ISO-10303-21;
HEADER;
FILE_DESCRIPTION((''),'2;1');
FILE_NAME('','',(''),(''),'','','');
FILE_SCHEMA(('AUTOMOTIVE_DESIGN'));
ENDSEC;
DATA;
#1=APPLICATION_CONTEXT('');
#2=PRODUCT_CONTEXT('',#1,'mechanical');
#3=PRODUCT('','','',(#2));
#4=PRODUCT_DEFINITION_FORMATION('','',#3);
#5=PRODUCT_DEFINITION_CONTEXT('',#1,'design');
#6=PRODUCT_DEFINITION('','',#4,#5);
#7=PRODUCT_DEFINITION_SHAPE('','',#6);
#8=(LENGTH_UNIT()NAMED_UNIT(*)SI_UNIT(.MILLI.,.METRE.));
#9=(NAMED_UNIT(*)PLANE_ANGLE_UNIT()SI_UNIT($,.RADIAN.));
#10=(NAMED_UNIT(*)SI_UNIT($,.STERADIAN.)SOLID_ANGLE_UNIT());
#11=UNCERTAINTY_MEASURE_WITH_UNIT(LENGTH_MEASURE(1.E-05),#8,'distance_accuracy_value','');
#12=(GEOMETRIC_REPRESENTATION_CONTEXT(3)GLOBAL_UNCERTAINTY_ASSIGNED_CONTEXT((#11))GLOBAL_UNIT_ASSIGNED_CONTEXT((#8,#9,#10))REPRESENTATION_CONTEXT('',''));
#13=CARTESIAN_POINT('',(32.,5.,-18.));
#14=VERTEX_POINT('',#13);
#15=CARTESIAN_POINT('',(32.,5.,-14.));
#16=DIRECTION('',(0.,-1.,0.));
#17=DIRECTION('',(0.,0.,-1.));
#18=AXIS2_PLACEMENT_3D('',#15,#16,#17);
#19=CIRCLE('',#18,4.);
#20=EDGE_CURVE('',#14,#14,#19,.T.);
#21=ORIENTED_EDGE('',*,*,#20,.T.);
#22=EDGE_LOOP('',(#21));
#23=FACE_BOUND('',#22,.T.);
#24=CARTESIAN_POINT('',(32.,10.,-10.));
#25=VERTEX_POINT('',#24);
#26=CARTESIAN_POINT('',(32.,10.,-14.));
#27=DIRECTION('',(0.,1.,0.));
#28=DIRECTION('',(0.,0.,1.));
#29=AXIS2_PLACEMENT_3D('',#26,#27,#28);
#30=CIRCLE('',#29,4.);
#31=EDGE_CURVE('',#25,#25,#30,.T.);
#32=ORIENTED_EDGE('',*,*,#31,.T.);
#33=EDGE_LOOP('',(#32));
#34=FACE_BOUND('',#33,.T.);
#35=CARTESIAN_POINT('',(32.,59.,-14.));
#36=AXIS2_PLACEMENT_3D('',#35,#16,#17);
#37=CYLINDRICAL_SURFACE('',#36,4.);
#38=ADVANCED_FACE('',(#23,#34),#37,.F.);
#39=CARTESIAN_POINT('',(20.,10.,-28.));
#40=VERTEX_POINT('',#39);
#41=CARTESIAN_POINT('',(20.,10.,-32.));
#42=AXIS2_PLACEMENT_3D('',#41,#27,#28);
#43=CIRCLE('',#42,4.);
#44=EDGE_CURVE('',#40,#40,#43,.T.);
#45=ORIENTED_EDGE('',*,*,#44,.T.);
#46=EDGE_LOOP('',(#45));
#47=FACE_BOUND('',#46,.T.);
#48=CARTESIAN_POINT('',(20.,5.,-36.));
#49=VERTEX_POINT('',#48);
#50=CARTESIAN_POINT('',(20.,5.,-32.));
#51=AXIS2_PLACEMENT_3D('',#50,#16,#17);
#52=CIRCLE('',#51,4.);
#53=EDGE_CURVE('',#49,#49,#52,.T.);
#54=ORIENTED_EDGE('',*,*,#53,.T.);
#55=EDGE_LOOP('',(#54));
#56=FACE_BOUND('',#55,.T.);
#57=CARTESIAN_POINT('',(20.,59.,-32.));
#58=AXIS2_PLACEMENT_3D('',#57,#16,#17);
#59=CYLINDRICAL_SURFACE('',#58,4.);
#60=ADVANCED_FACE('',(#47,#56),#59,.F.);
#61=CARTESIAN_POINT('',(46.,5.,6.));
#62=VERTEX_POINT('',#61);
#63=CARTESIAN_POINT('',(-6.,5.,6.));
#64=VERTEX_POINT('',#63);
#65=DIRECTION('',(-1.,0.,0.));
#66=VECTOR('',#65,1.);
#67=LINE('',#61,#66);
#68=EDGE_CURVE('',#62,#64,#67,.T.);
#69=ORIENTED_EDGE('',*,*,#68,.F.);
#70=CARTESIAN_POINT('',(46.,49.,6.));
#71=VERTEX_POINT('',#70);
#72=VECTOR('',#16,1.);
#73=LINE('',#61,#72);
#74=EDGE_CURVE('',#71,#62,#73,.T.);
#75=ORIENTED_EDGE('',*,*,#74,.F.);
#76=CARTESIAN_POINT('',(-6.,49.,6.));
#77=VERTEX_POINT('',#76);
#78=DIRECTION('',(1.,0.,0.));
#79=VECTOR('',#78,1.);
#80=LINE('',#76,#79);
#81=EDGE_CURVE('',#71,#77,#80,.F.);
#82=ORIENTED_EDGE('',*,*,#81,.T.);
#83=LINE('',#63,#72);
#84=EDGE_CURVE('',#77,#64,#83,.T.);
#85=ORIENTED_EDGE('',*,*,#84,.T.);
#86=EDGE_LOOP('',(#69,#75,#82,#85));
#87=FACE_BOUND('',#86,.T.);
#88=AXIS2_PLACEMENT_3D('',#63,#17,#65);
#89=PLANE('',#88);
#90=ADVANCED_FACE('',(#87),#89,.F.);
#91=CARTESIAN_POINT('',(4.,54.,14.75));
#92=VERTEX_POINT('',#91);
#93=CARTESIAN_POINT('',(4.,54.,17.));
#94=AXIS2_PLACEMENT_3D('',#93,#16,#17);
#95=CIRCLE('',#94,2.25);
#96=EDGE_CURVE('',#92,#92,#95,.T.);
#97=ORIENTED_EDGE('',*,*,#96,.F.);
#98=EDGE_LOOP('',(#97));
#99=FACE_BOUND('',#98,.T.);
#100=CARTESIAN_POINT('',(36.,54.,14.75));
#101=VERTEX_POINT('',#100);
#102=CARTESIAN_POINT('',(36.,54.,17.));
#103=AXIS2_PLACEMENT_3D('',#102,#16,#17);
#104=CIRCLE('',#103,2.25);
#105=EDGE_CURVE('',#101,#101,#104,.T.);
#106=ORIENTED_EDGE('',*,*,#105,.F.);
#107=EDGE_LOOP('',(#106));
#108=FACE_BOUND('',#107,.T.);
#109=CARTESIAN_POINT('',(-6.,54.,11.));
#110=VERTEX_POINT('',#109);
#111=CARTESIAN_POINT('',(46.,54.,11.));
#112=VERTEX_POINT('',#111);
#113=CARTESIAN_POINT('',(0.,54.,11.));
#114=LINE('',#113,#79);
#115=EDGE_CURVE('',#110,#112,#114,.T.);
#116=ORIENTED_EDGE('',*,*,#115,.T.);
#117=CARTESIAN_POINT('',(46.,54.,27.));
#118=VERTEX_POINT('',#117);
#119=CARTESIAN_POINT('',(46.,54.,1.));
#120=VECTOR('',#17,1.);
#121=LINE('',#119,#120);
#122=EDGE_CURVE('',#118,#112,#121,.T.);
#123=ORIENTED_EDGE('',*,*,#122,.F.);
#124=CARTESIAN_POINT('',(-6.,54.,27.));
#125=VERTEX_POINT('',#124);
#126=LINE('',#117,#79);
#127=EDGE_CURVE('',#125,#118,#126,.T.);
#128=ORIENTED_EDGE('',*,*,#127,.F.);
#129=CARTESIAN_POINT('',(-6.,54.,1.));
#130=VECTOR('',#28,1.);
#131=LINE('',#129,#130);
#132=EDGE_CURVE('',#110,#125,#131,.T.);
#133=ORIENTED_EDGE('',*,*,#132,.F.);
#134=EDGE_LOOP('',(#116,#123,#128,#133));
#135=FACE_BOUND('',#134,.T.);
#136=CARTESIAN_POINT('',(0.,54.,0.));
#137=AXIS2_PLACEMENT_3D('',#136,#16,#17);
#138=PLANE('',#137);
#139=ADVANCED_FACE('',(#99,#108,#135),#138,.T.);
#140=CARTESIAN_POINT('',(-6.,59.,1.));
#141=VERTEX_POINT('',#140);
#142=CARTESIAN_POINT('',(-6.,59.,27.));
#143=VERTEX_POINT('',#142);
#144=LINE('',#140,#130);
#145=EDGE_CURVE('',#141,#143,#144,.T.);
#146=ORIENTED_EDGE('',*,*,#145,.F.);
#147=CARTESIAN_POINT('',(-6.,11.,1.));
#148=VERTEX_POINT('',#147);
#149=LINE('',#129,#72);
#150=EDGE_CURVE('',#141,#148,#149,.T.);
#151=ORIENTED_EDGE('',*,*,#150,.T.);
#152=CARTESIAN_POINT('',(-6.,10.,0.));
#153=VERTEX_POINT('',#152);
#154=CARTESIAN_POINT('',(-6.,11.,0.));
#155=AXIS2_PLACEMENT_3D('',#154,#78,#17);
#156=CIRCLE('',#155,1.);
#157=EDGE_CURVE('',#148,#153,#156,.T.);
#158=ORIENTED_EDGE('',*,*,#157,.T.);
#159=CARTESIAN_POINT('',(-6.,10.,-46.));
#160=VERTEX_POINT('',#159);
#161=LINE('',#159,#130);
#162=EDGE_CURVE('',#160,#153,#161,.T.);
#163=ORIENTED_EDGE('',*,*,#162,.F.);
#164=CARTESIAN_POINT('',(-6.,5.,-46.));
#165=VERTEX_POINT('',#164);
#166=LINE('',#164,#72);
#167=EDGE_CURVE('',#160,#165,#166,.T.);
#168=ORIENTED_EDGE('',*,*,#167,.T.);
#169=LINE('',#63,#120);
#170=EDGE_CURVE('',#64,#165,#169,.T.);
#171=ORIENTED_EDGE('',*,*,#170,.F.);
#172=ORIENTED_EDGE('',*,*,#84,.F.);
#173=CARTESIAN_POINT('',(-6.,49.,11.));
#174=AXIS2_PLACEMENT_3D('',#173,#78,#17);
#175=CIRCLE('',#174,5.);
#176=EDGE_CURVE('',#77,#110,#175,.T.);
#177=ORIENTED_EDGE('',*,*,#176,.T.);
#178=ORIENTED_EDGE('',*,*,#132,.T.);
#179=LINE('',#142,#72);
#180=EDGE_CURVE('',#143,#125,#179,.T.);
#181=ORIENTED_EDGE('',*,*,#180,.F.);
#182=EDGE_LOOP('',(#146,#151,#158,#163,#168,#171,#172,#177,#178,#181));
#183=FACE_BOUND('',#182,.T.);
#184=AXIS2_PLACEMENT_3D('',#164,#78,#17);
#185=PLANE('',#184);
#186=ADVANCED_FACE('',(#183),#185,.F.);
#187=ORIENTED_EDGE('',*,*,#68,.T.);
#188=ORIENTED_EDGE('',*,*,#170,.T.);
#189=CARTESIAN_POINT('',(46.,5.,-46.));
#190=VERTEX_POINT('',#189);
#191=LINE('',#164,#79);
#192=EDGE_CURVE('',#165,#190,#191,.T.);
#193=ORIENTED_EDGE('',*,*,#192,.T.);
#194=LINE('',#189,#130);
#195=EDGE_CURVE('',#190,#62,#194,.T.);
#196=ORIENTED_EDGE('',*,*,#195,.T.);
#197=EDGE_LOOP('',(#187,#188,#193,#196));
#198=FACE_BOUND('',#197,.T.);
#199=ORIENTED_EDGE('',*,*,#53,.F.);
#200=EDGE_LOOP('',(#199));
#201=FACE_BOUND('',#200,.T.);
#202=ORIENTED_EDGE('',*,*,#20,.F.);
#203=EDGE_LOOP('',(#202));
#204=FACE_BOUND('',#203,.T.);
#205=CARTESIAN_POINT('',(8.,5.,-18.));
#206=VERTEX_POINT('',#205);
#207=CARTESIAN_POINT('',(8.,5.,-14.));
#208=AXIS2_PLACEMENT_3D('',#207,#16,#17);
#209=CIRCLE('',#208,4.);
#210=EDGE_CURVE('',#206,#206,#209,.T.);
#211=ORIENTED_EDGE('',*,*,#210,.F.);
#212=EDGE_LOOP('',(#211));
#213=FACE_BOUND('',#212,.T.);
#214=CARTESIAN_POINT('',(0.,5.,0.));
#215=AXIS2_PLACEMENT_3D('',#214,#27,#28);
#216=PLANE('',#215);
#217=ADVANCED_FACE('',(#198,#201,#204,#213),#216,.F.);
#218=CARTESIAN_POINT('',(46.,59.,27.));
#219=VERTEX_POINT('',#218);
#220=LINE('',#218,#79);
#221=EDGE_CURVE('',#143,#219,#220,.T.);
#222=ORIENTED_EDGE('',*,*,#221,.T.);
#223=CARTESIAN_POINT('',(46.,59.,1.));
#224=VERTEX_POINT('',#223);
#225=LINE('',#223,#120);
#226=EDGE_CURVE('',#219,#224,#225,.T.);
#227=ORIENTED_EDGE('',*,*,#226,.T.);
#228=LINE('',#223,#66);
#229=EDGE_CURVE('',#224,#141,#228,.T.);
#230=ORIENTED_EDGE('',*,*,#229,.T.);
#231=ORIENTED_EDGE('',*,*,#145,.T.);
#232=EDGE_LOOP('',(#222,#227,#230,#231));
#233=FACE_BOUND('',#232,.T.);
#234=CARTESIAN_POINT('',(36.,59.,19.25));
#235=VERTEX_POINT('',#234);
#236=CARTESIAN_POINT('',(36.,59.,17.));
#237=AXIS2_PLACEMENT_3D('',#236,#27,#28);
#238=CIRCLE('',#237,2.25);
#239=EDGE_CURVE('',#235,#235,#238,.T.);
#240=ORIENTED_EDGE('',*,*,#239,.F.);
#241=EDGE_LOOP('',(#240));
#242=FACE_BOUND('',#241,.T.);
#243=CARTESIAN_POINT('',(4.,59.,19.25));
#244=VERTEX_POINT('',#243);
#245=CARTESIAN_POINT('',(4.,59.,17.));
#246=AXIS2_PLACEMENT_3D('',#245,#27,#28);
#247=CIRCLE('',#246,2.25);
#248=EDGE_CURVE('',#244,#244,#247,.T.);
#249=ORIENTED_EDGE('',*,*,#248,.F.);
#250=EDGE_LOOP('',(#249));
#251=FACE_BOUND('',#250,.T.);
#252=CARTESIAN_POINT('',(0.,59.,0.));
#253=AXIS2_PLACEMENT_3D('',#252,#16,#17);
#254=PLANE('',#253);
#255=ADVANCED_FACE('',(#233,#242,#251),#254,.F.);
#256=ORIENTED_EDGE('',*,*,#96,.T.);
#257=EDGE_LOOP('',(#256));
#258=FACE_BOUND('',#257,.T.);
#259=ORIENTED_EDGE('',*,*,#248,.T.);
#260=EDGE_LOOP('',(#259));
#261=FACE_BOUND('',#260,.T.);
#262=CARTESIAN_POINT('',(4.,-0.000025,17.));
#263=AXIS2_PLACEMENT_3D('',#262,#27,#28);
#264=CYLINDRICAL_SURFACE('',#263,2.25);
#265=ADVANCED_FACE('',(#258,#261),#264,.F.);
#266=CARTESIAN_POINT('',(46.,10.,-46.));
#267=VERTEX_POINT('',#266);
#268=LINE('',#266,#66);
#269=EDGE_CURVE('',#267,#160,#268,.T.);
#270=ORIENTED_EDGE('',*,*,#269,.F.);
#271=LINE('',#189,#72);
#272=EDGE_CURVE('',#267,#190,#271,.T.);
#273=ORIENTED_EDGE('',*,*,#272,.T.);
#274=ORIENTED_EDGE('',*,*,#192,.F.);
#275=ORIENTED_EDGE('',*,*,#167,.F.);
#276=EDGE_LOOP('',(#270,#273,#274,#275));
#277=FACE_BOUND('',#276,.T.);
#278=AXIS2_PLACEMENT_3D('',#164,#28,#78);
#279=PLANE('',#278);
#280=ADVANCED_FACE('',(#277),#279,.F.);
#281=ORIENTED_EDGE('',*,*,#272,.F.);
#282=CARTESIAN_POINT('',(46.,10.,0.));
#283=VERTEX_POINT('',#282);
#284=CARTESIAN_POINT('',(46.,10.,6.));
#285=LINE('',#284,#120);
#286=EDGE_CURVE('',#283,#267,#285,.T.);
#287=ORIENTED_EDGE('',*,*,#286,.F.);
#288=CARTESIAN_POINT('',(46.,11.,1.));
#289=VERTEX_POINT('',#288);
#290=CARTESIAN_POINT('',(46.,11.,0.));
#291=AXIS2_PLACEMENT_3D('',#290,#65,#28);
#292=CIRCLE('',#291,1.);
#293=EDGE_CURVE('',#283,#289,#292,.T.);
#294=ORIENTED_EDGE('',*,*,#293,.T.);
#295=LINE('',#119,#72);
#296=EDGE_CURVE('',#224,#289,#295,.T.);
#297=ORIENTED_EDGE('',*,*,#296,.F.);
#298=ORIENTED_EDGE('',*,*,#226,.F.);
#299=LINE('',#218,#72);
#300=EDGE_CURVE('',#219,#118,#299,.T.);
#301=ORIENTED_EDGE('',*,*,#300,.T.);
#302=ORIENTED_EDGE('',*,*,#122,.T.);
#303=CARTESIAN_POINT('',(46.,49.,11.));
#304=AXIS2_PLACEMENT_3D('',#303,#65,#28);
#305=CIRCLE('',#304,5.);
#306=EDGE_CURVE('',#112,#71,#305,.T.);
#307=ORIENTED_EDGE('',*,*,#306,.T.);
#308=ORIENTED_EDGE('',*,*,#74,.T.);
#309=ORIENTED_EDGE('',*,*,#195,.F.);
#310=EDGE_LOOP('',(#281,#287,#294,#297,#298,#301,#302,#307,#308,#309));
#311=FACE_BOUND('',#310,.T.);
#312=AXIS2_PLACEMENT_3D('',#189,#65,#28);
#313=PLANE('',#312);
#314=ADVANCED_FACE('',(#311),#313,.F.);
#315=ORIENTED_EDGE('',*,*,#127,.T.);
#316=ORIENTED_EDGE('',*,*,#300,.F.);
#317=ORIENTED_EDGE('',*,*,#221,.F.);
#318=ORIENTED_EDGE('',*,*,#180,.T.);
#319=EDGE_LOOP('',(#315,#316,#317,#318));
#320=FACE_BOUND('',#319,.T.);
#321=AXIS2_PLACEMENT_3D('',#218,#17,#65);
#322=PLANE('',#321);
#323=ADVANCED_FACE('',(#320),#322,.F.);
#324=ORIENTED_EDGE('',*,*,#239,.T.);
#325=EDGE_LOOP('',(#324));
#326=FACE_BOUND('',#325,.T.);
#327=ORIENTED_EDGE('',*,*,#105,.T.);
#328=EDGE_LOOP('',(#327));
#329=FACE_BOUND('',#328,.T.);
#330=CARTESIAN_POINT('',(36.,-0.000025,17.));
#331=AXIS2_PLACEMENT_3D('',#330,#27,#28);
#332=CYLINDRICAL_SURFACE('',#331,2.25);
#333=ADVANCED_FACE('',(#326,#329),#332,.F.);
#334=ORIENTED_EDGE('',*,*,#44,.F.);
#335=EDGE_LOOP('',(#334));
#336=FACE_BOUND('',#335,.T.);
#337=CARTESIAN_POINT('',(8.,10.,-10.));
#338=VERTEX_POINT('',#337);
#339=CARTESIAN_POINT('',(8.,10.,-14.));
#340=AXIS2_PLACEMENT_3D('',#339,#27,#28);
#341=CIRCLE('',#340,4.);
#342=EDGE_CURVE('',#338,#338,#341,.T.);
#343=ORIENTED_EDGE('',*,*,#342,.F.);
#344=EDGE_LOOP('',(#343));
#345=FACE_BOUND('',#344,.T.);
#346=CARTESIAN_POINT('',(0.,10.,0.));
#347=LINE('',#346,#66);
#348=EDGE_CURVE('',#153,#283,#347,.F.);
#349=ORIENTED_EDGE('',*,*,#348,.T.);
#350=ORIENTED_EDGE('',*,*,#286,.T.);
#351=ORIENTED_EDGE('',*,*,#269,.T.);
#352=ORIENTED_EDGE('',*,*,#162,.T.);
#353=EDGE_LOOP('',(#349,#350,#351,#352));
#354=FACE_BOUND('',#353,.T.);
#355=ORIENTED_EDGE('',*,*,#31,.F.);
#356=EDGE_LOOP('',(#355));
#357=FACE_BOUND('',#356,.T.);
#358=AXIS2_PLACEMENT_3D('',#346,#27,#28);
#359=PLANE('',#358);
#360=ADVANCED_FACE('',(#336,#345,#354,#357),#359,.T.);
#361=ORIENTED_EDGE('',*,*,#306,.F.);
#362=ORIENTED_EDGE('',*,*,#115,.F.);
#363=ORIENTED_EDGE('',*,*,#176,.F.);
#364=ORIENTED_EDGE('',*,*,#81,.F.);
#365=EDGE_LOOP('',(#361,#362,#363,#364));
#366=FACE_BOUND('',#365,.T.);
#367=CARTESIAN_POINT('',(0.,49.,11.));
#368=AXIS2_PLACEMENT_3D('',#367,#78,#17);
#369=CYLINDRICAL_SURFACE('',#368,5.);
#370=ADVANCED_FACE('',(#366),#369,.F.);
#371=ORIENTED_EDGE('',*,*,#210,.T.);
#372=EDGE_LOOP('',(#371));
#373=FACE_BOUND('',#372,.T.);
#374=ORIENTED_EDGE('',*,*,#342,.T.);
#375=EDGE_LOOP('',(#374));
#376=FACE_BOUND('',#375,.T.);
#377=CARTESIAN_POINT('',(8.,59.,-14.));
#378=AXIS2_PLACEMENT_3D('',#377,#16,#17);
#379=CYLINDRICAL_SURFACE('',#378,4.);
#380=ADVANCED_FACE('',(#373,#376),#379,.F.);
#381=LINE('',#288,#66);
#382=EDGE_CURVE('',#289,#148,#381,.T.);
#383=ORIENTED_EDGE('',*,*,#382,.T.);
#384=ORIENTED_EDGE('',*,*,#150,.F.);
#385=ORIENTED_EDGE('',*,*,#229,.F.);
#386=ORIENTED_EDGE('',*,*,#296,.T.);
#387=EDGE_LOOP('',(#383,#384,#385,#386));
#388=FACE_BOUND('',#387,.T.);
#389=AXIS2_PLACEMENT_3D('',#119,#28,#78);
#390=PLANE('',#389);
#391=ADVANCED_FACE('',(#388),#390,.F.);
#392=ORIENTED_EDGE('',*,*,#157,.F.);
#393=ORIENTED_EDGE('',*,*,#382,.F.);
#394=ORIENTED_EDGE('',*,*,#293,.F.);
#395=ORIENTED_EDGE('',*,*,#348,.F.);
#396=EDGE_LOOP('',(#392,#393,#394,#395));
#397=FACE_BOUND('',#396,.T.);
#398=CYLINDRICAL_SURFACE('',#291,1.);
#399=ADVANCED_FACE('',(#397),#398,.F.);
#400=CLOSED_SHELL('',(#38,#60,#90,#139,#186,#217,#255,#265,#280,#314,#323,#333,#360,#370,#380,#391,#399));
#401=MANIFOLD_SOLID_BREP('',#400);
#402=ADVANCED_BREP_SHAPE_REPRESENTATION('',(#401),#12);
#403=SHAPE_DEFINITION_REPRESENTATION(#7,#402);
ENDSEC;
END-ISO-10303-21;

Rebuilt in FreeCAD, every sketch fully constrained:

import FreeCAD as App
import Part
import Sketcher

V = App.Vector
Q = App.Units.Quantity


def edges_at(feature, points):
    """Names of the edges that pass closest to the given points."""
    edges = feature.Shape.Edges
    near = lambda p: min(range(len(edges)), key=lambda i: edges[i].distToShape(Part.Vertex(*p))[0])
    return sorted({f"Edge{near(p) + 1}" for p in points})


def add_polygon(sketch, points):
    """Adds a closed chain of lines whose ends are joined by coincident constraints."""
    first, n = sketch.GeometryCount, len(points)
    for a, b in zip(points, points[1:] + points[:1]):
        sketch.addGeometry(Part.LineSegment(App.Vector(*a, 0), App.Vector(*b, 0)), False)
    for i in range(n):
        sketch.addConstraint(Sketcher.Constraint("Coincident", first + i, 2, first + (i + 1) % n, 1))

doc = App.newDocument("Part")
body = doc.addObject("PartDesign::Body", "Body")

sketch1 = doc.addObject("Sketcher::SketchObject", "Sketch")
body.addObject(sketch1)
sketch1.AttachmentSupport = (doc.XZ_Plane, [""])
sketch1.MapMode = "FlatFace"
add_polygon(sketch1, [(-6, -46), (-6, 6), (46, 6), (46, -46)])
add_polygon(sketch1, [(41, 1), (-1, 1), (-1, -41), (41, -41)])
sketch1.addConstraint([
    Sketcher.Constraint("Vertical", 0),
    Sketcher.Constraint("Horizontal", 1),
    Sketcher.Constraint("Vertical", 2),
    Sketcher.Constraint("Horizontal", 3),
    Sketcher.Constraint("Horizontal", 4),
    Sketcher.Constraint("Vertical", 5),
    Sketcher.Constraint("Horizontal", 6),
    Sketcher.Constraint("Vertical", 7),
    Sketcher.Constraint("Equal", 3, 0),
    Sketcher.Constraint("Equal", 6, 5),
    Sketcher.Constraint("DistanceX", 1, 1, 1, 2, Q("52 mm")),
    Sketcher.Constraint("DistanceX", 4, 2, 4, 1, Q("42 mm")),
    Sketcher.Constraint("DistanceX", 0, 2, -1, 1, Q("6 mm")),
    Sketcher.Constraint("DistanceY", -1, 1, 0, 2, Q("6 mm")),
    Sketcher.Constraint("DistanceX", 4, 2, -1, 1, Q("1 mm")),
    Sketcher.Constraint("DistanceY", -1, 1, 4, 2, Q("1 mm")),
])
pad1 = doc.addObject("PartDesign::Pad", "Pad")
body.addObject(pad1)
pad1.Profile = sketch1
pad1.Length = 5
pad1.Reversed = True

sketch2 = doc.addObject("Sketcher::SketchObject", "Sketch001")
body.addObject(sketch2)
sketch2.AttachmentSupport = (doc.XZ_Plane, [""])
sketch2.MapMode = "FlatFace"
sketch2.AttachmentOffset = App.Placement(V(0, 0, -5), App.Rotation())
add_polygon(sketch2, [(-6, -46), (-6, 6), (46, 6), (46, -46)])
sketch2.addConstraint([
    Sketcher.Constraint("Vertical", 0),
    Sketcher.Constraint("Horizontal", 1),
    Sketcher.Constraint("Vertical", 2),
    Sketcher.Constraint("Horizontal", 3),
    Sketcher.Constraint("Equal", 3, 0),
    Sketcher.Constraint("DistanceX", 1, 1, 1, 2, Q("52 mm")),
    Sketcher.Constraint("DistanceX", 0, 2, -1, 1, Q("6 mm")),
    Sketcher.Constraint("DistanceY", -1, 1, 0, 2, Q("6 mm")),
])
pad2 = doc.addObject("PartDesign::Pad", "Pad001")
body.addObject(pad2)
pad2.Profile = sketch2
pad2.Length = 5
pad2.Reversed = True

sketch3 = doc.addObject("Sketcher::SketchObject", "Sketch002")
body.addObject(sketch3)
sketch3.AttachmentSupport = (doc.XZ_Plane, [""])
sketch3.MapMode = "FlatFace"
sketch3.AttachmentOffset = App.Placement(V(0, 0, -10), App.Rotation())
add_polygon(sketch3, [(-6, 1), (-6, 6), (46, 6), (46, 1)])
sketch3.addConstraint([
    Sketcher.Constraint("Vertical", 0),
    Sketcher.Constraint("Horizontal", 1),
    Sketcher.Constraint("Vertical", 2),
    Sketcher.Constraint("Horizontal", 3),
    Sketcher.Constraint("DistanceX", 1, 1, 1, 2, Q("52 mm")),
    Sketcher.Constraint("DistanceY", 0, 1, 0, 2, Q("5 mm")),
    Sketcher.Constraint("DistanceX", 0, 2, -1, 1, Q("6 mm")),
    Sketcher.Constraint("DistanceY", -1, 1, 0, 2, Q("6 mm")),
])
pad3 = doc.addObject("PartDesign::Pad", "Pad002")
body.addObject(pad3)
pad3.Profile = sketch3
pad3.Length = 44
pad3.Reversed = True

sketch4 = doc.addObject("Sketcher::SketchObject", "Sketch003")
body.addObject(sketch4)
sketch4.AttachmentSupport = (doc.XZ_Plane, [""])
sketch4.MapMode = "FlatFace"
sketch4.AttachmentOffset = App.Placement(V(0, 0, -54), App.Rotation())
add_polygon(sketch4, [(-6, 1), (-6, 27), (46, 27), (46, 1)])
sketch4.addConstraint([
    Sketcher.Constraint("Vertical", 0),
    Sketcher.Constraint("Horizontal", 1),
    Sketcher.Constraint("Vertical", 2),
    Sketcher.Constraint("Horizontal", 3),
    Sketcher.Constraint("DistanceX", 1, 1, 1, 2, Q("52 mm")),
    Sketcher.Constraint("DistanceY", 0, 1, 0, 2, Q("26 mm")),
    Sketcher.Constraint("DistanceX", 0, 2, -1, 1, Q("6 mm")),
    Sketcher.Constraint("DistanceY", -1, 1, 0, 2, Q("27 mm")),
])
pad4 = doc.addObject("PartDesign::Pad", "Pad003")
body.addObject(pad4)
pad4.Profile = sketch4
pad4.Length = 5
pad4.Reversed = True

sketch5 = doc.addObject("Sketcher::SketchObject", "Sketch004")
body.addObject(sketch5)
sketch5.AttachmentSupport = (doc.XZ_Plane, [""])
sketch5.MapMode = "FlatFace"
sketch5.AttachmentOffset = App.Placement(V(0, 0, -59), App.Rotation())
sketch5.addGeometry([
    Part.Circle(V(36, 17, 0), V(0, 0, 1), 2.2),
    Part.Circle(V(4, 17, 0), V(0, 0, 1), 2.2),
], False)
sketch5.addConstraint([
    Sketcher.Constraint("Equal", 0, 1),
    Sketcher.Constraint("Horizontal", 0, 3, 1, 3),
    Sketcher.Constraint("Diameter", 0, Q("4.5 mm")),
    Sketcher.Constraint("DistanceX", -1, 1, 0, 3, Q("36 mm")),
    Sketcher.Constraint("DistanceY", -1, 1, 0, 3, Q("17 mm")),
    Sketcher.Constraint("DistanceX", -1, 1, 1, 3, Q("4 mm")),
])
pocket1 = doc.addObject("PartDesign::Pocket", "Pocket")
body.addObject(pocket1)
pocket1.Profile = sketch5
pocket1.Type = "ThroughAll"
pocket1.Reversed = True
doc.recompute()

fillet = doc.addObject("PartDesign::Fillet", "Fillet")
body.addObject(fillet)
fillet.Base = (pocket1, edges_at(pocket1, [(20, 54, 6)]))
fillet.Radius = 5
doc.recompute()

fillet2 = doc.addObject("PartDesign::Fillet", "Fillet001")
body.addObject(fillet2)
fillet2.Base = (fillet, edges_at(fillet, [(20, 10, 1)]))
fillet2.Radius = 1

sketch6 = doc.addObject("Sketcher::SketchObject", "Sketch005")
body.addObject(sketch6)
sketch6.AttachmentSupport = (doc.XZ_Plane, [""])
sketch6.MapMode = "FlatFace"
sketch6.AttachmentOffset = App.Placement(V(0, 0, -5), App.Rotation())
sketch6.addGeometry([
    Part.Circle(V(20, -32, 0), V(0, 0, 1), 4),
    Part.Circle(V(32, -14, 0), V(0, 0, 1), 4),
    Part.Circle(V(8, -14, 0), V(0, 0, 1), 4),
], False)
sketch6.addConstraint([
    Sketcher.Constraint("Equal", 0, 1),
    Sketcher.Constraint("Equal", 1, 2),
    Sketcher.Constraint("Horizontal", 1, 3, 2, 3),
    Sketcher.Constraint("Diameter", 0, Q("8 mm")),
    Sketcher.Constraint("DistanceX", -1, 1, 0, 3, Q("20 mm")),
    Sketcher.Constraint("DistanceY", 0, 3, -1, 1, Q("32 mm")),
    Sketcher.Constraint("DistanceX", -1, 1, 1, 3, Q("32 mm")),
    Sketcher.Constraint("DistanceY", 1, 3, -1, 1, Q("14 mm")),
    Sketcher.Constraint("DistanceX", -1, 1, 2, 3, Q("8 mm")),
])
pocket2 = doc.addObject("PartDesign::Pocket", "Pocket001")
body.addObject(pocket2)
pocket2.Profile = sketch6
pocket2.Type = "ThroughAll"

sketch7 = doc.addObject("Sketcher::SketchObject", "Sketch006")
body.addObject(sketch7)
sketch7.AttachmentSupport = (doc.XZ_Plane, [""])
sketch7.MapMode = "FlatFace"
add_polygon(sketch7, [(-6, 6), (-6, -46), (46, -46), (46, 6)])
add_polygon(sketch7, [(41, -41), (-1, -41), (-1, 1), (41, 1)])
sketch7.addConstraint([
    Sketcher.Constraint("Vertical", 0),
    Sketcher.Constraint("Horizontal", 1),
    Sketcher.Constraint("Vertical", 2),
    Sketcher.Constraint("Horizontal", 3),
    Sketcher.Constraint("Horizontal", 4),
    Sketcher.Constraint("Vertical", 5),
    Sketcher.Constraint("Horizontal", 6),
    Sketcher.Constraint("Vertical", 7),
    Sketcher.Constraint("Equal", 3, 0),
    Sketcher.Constraint("Equal", 6, 5),
    Sketcher.Constraint("DistanceX", 1, 1, 1, 2, Q("52 mm")),
    Sketcher.Constraint("DistanceX", 4, 2, 4, 1, Q("42 mm")),
    Sketcher.Constraint("DistanceX", 0, 2, -1, 1, Q("6 mm")),
    Sketcher.Constraint("DistanceY", 0, 2, -1, 1, Q("46 mm")),
    Sketcher.Constraint("DistanceX", 4, 2, -1, 1, Q("1 mm")),
    Sketcher.Constraint("DistanceY", 4, 2, -1, 1, Q("41 mm")),
])
pocket3 = doc.addObject("PartDesign::Pocket", "Pocket002")
body.addObject(pocket3)
pocket3.Profile = sketch7
pocket3.Length = 5

doc.recompute()
